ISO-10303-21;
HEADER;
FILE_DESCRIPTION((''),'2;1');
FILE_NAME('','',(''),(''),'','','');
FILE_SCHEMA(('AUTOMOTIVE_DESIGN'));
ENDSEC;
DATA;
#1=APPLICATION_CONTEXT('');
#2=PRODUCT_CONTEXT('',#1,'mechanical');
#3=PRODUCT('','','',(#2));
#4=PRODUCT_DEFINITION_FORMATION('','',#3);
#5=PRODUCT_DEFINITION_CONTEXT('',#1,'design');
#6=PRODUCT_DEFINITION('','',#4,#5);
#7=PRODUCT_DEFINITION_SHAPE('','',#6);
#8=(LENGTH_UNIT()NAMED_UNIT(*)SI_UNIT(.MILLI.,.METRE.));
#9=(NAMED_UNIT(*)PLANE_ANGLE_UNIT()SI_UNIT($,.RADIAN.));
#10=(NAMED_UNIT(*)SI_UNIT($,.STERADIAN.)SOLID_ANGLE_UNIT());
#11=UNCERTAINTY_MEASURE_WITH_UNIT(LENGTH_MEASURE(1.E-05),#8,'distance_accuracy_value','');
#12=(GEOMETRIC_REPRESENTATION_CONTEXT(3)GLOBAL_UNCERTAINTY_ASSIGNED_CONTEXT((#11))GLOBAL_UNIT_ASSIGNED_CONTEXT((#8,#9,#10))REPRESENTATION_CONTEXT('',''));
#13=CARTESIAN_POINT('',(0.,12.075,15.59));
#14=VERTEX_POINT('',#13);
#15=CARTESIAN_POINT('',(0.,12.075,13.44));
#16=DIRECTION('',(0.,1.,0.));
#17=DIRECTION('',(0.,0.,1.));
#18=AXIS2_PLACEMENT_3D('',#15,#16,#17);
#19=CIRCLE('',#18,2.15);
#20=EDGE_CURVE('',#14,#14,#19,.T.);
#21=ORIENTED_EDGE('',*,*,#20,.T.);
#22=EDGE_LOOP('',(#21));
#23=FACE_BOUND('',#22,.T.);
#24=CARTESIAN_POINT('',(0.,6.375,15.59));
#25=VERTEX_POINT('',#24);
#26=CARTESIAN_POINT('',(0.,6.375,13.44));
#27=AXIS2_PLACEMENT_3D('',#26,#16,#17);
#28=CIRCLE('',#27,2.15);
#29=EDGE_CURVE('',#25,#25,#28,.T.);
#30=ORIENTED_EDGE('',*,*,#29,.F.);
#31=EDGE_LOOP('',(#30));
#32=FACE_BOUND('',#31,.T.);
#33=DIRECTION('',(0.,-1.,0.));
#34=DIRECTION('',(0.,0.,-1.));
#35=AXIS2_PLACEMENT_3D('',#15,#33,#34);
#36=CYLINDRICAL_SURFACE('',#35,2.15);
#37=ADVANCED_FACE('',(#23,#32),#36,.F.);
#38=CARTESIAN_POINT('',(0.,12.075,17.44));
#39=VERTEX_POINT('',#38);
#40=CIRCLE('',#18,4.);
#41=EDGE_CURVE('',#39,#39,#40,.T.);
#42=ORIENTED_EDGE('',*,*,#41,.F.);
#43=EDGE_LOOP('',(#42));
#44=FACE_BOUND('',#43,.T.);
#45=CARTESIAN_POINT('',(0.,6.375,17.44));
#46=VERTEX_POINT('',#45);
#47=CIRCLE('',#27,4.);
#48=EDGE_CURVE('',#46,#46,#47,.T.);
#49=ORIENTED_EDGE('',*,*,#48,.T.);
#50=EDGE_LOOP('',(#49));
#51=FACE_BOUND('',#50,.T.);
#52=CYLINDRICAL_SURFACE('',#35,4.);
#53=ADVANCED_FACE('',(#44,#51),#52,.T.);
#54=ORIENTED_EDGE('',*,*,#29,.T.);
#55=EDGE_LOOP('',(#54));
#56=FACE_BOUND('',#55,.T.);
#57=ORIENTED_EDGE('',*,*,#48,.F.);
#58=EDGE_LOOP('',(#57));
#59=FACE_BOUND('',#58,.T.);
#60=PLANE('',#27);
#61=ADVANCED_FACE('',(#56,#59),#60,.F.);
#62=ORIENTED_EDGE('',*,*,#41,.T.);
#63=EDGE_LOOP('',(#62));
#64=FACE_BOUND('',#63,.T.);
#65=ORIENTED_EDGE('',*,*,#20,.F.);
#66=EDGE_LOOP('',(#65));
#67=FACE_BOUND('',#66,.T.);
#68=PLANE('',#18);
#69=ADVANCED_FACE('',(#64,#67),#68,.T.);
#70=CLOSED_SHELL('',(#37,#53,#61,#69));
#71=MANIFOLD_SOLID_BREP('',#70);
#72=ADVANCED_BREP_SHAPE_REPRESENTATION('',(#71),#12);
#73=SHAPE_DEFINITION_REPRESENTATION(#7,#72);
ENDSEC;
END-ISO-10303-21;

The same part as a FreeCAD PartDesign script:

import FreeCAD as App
import Part
import Sketcher

V = App.Vector

doc = App.newDocument("Part")
body = doc.addObject("PartDesign::Body", "Body")

# Sketch on XZ plane
sketch1 = body.newObject("Sketcher::SketchObject", "Sketch")
sketch1.AttachmentSupport = (doc.getObject("XZ_Plane"), [""])
sketch1.MapMode = "FlatFace"
sketch1.AttachmentOffset = App.Placement(V(0, 0, -9.225), App.Rotation())
sketch1.addGeometry(Part.Circle(V(0, 13.44, 0), V(0, 0, 1), 4), False)
sketch1.addGeometry(Part.Circle(V(0, 13.44, 0), V(0, 0, 1), 2.15), False)
sketch1.addConstraint(Sketcher.Constraint("Coincident", 1, 3, 0, 3))
sketch1.addConstraint(Sketcher.Constraint("PointOnObject", 0, 3, -2))
sketch1.addConstraint(Sketcher.Constraint("Diameter", 0, 8.0))
sketch1.addConstraint(Sketcher.Constraint("Diameter", 1, 4.3))
sketch1.addConstraint(Sketcher.Constraint("DistanceY", -1, 1, 0, 3, 13.44))
pad1 = body.newObject("PartDesign::Pad", "Pad")
pad1.Profile = sketch1
pad1.Length = 5.7
pad1.Midplane = True

doc.recompute()
